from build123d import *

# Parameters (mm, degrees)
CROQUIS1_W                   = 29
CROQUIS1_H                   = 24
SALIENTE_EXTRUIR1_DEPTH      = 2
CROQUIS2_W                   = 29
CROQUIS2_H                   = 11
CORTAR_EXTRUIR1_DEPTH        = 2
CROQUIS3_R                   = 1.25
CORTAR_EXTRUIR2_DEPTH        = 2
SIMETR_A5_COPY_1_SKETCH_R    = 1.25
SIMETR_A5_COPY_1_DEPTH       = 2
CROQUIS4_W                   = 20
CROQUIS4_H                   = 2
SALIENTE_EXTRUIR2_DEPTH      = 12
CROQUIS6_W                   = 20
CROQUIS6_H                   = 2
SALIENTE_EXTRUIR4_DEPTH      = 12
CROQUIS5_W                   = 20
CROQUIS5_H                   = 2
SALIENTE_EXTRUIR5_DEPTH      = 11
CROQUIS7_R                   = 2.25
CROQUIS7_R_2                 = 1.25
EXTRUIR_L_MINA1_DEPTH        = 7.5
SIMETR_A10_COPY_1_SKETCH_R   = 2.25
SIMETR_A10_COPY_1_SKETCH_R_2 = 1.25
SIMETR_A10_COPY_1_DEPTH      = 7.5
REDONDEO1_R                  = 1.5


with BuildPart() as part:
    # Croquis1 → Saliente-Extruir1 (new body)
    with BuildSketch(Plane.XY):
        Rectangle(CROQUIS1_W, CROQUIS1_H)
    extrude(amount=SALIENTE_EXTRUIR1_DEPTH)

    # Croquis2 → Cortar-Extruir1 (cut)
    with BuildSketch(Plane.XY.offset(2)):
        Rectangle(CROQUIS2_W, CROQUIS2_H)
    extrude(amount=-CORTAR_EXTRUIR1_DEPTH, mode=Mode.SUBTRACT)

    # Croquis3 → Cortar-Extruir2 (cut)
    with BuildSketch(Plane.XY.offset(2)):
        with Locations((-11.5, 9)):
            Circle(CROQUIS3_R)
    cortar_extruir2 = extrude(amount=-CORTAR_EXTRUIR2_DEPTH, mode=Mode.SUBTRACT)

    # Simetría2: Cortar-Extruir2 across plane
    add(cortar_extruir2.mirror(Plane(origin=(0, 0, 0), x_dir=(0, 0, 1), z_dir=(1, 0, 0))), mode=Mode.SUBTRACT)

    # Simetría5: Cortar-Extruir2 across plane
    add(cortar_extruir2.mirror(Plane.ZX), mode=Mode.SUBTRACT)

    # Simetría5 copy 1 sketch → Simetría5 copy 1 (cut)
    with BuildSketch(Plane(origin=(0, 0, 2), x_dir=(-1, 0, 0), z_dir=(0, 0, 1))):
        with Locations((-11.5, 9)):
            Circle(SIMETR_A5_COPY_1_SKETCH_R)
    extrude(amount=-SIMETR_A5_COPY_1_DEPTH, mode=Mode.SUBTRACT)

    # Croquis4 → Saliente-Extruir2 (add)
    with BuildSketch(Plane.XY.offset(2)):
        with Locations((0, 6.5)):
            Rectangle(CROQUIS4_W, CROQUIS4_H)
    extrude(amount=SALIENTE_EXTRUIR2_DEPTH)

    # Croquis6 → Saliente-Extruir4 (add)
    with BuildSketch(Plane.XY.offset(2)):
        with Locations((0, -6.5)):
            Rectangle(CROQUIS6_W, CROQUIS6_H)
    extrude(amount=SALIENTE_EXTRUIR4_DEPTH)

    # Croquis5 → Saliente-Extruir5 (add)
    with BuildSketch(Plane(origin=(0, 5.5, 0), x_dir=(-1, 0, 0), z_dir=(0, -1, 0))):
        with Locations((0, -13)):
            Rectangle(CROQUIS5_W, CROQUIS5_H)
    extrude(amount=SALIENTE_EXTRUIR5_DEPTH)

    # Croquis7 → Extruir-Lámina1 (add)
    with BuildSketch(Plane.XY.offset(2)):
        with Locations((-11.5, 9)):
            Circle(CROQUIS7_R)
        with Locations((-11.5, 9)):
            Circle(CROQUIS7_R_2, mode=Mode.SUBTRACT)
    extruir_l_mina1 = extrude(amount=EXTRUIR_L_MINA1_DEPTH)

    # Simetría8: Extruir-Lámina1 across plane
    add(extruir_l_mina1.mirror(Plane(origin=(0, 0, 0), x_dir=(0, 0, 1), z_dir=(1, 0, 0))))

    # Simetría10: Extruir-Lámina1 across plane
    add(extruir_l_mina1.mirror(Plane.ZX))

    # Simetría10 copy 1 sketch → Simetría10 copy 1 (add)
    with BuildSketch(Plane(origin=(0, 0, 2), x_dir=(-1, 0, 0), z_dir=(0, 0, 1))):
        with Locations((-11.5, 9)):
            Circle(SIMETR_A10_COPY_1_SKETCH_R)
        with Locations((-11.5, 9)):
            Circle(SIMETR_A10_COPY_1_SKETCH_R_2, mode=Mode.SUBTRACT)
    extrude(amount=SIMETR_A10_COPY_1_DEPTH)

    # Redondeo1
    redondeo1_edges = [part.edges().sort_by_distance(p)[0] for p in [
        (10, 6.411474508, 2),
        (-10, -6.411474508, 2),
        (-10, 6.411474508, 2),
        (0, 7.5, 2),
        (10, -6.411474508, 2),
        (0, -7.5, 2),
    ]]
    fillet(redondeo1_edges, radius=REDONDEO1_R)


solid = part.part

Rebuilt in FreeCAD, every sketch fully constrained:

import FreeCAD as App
import Part
import Sketcher

V = App.Vector


def edges_at(feature, points):
    """Names of the edges that pass closest to the given points."""
    edges = feature.Shape.Edges
    near = lambda p: min(range(len(edges)), key=lambda i: edges[i].distToShape(Part.Vertex(*p))[0])
    return sorted({f"Edge{near(p) + 1}" for p in points})


def add_polygon(sketch, points):
    """Adds a closed chain of lines whose ends are joined by coincident constraints."""
    first, n = sketch.GeometryCount, len(points)
    for a, b in zip(points, points[1:] + points[:1]):
        sketch.addGeometry(Part.LineSegment(App.Vector(*a, 0), App.Vector(*b, 0)), False)
    for i in range(n):
        sketch.addConstraint(Sketcher.Constraint("Coincident", first + i, 2, first + (i + 1) % n, 1))

doc = App.newDocument("Part")
body = doc.addObject("PartDesign::Body", "Body")
body.AllowCompound = True

# Sketch on XY plane
sketch1 = body.newObject("Sketcher::SketchObject", "Sketch")
sketch1.AttachmentSupport = (doc.getObject("XY_Plane"), [""])
sketch1.MapMode = "FlatFace"
add_polygon(sketch1, [(-14, 12), (-14, -12), (14, -12), (14, 12)])  # lines 0-3
sketch1.addConstraint([
    Sketcher.Constraint("Vertical", 0),
    Sketcher.Constraint("Horizontal", 1),
    Sketcher.Constraint("Vertical", 2),
    Sketcher.Constraint("Horizontal", 3),
    Sketcher.Constraint("Symmetric", 0, 2, 2, 2, -1, 1),
    Sketcher.Constraint("DistanceX", 1, 1, 1, 2, 29.0),
    Sketcher.Constraint("DistanceY", 0, 2, 0, 1, 24.0),
])
pad1 = body.newObject("PartDesign::Pad", "Pad")
pad1.Profile = sketch1
pad1.Length = 2

# Sketch on XY plane
sketch2 = body.newObject("Sketcher::SketchObject", "Sketch001")
sketch2.AttachmentSupport = (doc.getObject("XY_Plane"), [""])
sketch2.MapMode = "FlatFace"
sketch2.AttachmentOffset = App.Placement(V(0, 0, 2), App.Rotation())
add_polygon(sketch2, [(-14, 6), (-14, -6), (14, -6), (14, 6)])  # lines 0-3
sketch2.addConstraint([
    Sketcher.Constraint("Vertical", 0),
    Sketcher.Constraint("Horizontal", 1),
    Sketcher.Constraint("Vertical", 2),
    Sketcher.Constraint("Horizontal", 3),
    Sketcher.Constraint("Symmetric", 0, 2, 2, 2, -1, 1),
    Sketcher.Constraint("DistanceX", 1, 1, 1, 2, 29.0),
    Sketcher.Constraint("DistanceY", 0, 2, 0, 1, 11.0),
])
pocket1 = body.newObject("PartDesign::Pocket", "Pocket")
pocket1.Profile = sketch2
pocket1.Length = 2

# Sketch on XY plane
sketch3 = body.newObject("Sketcher::SketchObject", "Sketch002")
sketch3.AttachmentSupport = (doc.getObject("XY_Plane"), [""])
sketch3.MapMode = "FlatFace"
sketch3.AttachmentOffset = App.Placement(V(0, 0, 2), App.Rotation())
sketch3.addGeometry(Part.Circle(V(-11.5, 9, 0), V(0, 0, 1), 1.2), False)
sketch3.addConstraint([
    Sketcher.Constraint("Diameter", 0, 2.5),
    Sketcher.Constraint("DistanceY", -1, 1, 0, 3, 9.0),
    Sketcher.Constraint("DistanceX", 0, 3, -1, 1, 11.5),
])
pocket2 = body.newObject("PartDesign::Pocket", "Pocket001")
pocket2.Profile = sketch3
pocket2.Length = 2
doc.recompute()

mirrored = body.newObject("PartDesign::Mirrored", "Mirrored")
mirrored.Originals = [pocket2]
mirrored.MirrorPlane = (doc.getObject("YZ_Plane"), [""])
body.Tip = mirrored
doc.recompute()

mirrored2 = body.newObject("PartDesign::Mirrored", "Mirrored001")
mirrored2.Originals = [pocket2]
mirrored2.MirrorPlane = (doc.getObject("XZ_Plane"), [""])
body.Tip = mirrored2

# Sketch on XY plane
sketch4 = body.newObject("Sketcher::SketchObject", "Sketch003")
sketch4.AttachmentSupport = (doc.getObject("XY_Plane"), [""])
sketch4.MapMode = "FlatFace"
sketch4.AttachmentOffset = App.Placement(V(0, 0, 2), App.Rotation())
sketch4.addGeometry(Part.Circle(V(11.5, -9, 0), V(0, 0, 1), 1.2), False)
sketch4.addConstraint([
    Sketcher.Constraint("Diameter", 0, 2.5),
    Sketcher.Constraint("DistanceY", 0, 3, -1, 1, 9.0),
    Sketcher.Constraint("DistanceX", -1, 1, 0, 3, 11.5),
])
pocket3 = body.newObject("PartDesign::Pocket", "Pocket002")
pocket3.Profile = sketch4
pocket3.Length = 2

# Sketch on XY plane
sketch5 = body.newObject("Sketcher::SketchObject", "Sketch004")
sketch5.AttachmentSupport = (doc.getObject("XY_Plane"), [""])
sketch5.MapMode = "FlatFace"
sketch5.AttachmentOffset = App.Placement(V(0, 0, 2), App.Rotation())
add_polygon(sketch5, [(-10, 7.5), (-10, 5.5), (10, 5.5), (10, 7.5)])  # lines 0-3
sketch5.addConstraint([
    Sketcher.Constraint("Vertical", 0),
    Sketcher.Constraint("Horizontal", 1),
    Sketcher.Constraint("Vertical", 2),
    Sketcher.Constraint("Horizontal", 3),
    Sketcher.Constraint("DistanceX", 1, 1, 1, 2, 20.0),
    Sketcher.Constraint("DistanceY", 0, 2, 0, 1, 2.0),
    Sketcher.Constraint("DistanceX", 0, 2, -1, 1, 10.0),
    Sketcher.Constraint("DistanceY", -1, 1, 0, 2, 5.5),
])
pad2 = body.newObject("PartDesign::Pad", "Pad001")
pad2.Profile = sketch5
pad2.Length = 12

# Sketch on XY plane
sketch6 = body.newObject("Sketcher::SketchObject", "Sketch005")
sketch6.AttachmentSupport = (doc.getObject("XY_Plane"), [""])
sketch6.MapMode = "FlatFace"
sketch6.AttachmentOffset = App.Placement(V(0, 0, 2), App.Rotation())
add_polygon(sketch6, [(-10, -5.5), (-10, -7.5), (10, -7.5), (10, -5.5)])  # lines 0-3
sketch6.addConstraint([
    Sketcher.Constraint("Vertical", 0),
    Sketcher.Constraint("Horizontal", 1),
    Sketcher.Constraint("Vertical", 2),
    Sketcher.Constraint("Horizontal", 3),
    Sketcher.Constraint("DistanceX", 1, 1, 1, 2, 20.0),
    Sketcher.Constraint("DistanceY", 0, 2, 0, 1, 2.0),
    Sketcher.Constraint("DistanceX", 0, 2, -1, 1, 10.0),
    Sketcher.Constraint("DistanceY", 0, 2, -1, 1, 7.5),
])
pad3 = body.newObject("PartDesign::Pad", "Pad002")
pad3.Profile = sketch6
pad3.Length = 12

# Sketch on XZ plane
sketch7 = body.newObject("Sketcher::SketchObject", "Sketch006")
sketch7.AttachmentSupport = (doc.getObject("XZ_Plane"), [""])
sketch7.MapMode = "FlatFace"
sketch7.AttachmentOffset = App.Placement(V(0, 0, -5.5), App.Rotation())
add_polygon(sketch7, [(10, 12), (10, 14), (-10, 14), (-10, 12)])  # lines 0-3
sketch7.addConstraint([
    Sketcher.Constraint("Vertical", 0),
    Sketcher.Constraint("Horizontal", 1),
    Sketcher.Constraint("Vertical", 2),
    Sketcher.Constraint("Horizontal", 3),
    Sketcher.Constraint("DistanceX", 1, 2, 1, 1, 20.0),
    Sketcher.Constraint("DistanceY", 0, 1, 0, 2, 2.0),
    Sketcher.Constraint("DistanceX", -1, 1, 0, 2, 10.0),
    Sketcher.Constraint("DistanceY", -1, 1, 0, 2, 14.0),
])
pad4 = body.newObject("PartDesign::Pad", "Pad003")
pad4.Profile = sketch7
pad4.Length = 11

# Sketch on XY plane
sketch8 = body.newObject("Sketcher::SketchObject", "Sketch007")
sketch8.AttachmentSupport = (doc.getObject("XY_Plane"), [""])
sketch8.MapMode = "FlatFace"
sketch8.AttachmentOffset = App.Placement(V(0, 0, 2), App.Rotation())
sketch8.addGeometry([
    Part.Circle(V(-11.5, 9, 0), V(0, 0, 1), 2.2),
    Part.Circle(V(-11.5, 9, 0), V(0, 0, 1), 1.2),
], False)
sketch8.addConstraint([
    Sketcher.Constraint("Coincident", 1, 3, 0, 3),
    Sketcher.Constraint("Diameter", 0, 4.5),
    Sketcher.Constraint("Diameter", 1, 2.5),
    Sketcher.Constraint("DistanceY", -1, 1, 0, 3, 9.0),
    Sketcher.Constraint("DistanceX", 0, 3, -1, 1, 11.5),
])
pad5 = body.newObject("PartDesign::Pad", "Pad004")
pad5.Profile = sketch8
pad5.Length = 7.5
doc.recompute()

mirrored3 = body.newObject("PartDesign::Mirrored", "Mirrored002")
mirrored3.Originals = [pad5]
mirrored3.MirrorPlane = (doc.getObject("YZ_Plane"), [""])
body.Tip = mirrored3
doc.recompute()

mirrored4 = body.newObject("PartDesign::Mirrored", "Mirrored003")
mirrored4.Originals = [pad5]
mirrored4.MirrorPlane = (doc.getObject("XZ_Plane"), [""])
body.Tip = mirrored4

# Sketch on XY plane
sketch9 = body.newObject("Sketcher::SketchObject", "Sketch008")
sketch9.AttachmentSupport = (doc.getObject("XY_Plane"), [""])
sketch9.MapMode = "FlatFace"
sketch9.AttachmentOffset = App.Placement(V(0, 0, 2), App.Rotation())
sketch9.addGeometry([
    Part.Circle(V(11.5, -9, 0), V(0, 0, 1), 2.2),
    Part.Circle(V(11.5, -9, 0), V(0, 0, 1), 1.2),
], False)
sketch9.addConstraint([
    Sketcher.Constraint("Coincident", 1, 3, 0, 3),
    Sketcher.Constraint("Diameter", 0, 4.5),
    Sketcher.Constraint("Diameter", 1, 2.5),
    Sketcher.Constraint("DistanceY", 0, 3, -1, 1, 9.0),
    Sketcher.Constraint("DistanceX", -1, 1, 0, 3, 11.5),
])
pad6 = body.newObject("PartDesign::Pad", "Pad005")
pad6.Profile = sketch9
pad6.Length = 7.5
doc.recompute()

fillet = body.newObject("PartDesign::Fillet", "Fillet")
fillet.Base = (pad6, edges_at(pad6, [
    (10, 6.411, 2),
    (-10, -6.411, 2),
    (-10, 6.411, 2),
    (0, 7.5, 2),
    (10, -6.411, 2),
    (0, -7.5, 2),
]))
fillet.Radius = 1.5

doc.recompute()
